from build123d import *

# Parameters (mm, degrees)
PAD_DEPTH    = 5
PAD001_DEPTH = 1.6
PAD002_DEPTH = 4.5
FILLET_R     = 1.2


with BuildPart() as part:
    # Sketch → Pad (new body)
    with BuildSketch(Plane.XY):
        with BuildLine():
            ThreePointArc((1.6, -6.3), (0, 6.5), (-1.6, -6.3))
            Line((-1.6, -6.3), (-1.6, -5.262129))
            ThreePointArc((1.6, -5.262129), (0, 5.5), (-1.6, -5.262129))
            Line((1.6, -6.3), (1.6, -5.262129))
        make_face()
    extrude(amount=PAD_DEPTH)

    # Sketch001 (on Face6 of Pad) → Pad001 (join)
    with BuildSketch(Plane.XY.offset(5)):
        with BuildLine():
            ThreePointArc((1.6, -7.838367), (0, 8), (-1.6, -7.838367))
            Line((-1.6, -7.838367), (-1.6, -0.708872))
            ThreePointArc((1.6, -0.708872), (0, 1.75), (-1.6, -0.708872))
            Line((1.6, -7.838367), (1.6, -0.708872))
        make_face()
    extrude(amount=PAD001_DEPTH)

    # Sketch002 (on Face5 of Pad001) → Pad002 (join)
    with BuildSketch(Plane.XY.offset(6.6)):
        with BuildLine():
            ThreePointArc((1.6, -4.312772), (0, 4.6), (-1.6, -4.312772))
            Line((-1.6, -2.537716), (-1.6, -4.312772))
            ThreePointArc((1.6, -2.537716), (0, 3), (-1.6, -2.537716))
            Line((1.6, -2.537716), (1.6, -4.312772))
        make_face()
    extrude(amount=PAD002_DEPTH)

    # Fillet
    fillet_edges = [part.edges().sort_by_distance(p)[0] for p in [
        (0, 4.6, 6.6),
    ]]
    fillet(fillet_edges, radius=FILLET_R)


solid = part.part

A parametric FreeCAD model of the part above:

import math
import FreeCAD as App
import Part
import Sketcher

V = App.Vector


def edges_at(feature, points):
    """Names of the edges that pass closest to the given points."""
    edges = feature.Shape.Edges
    near = lambda p: min(range(len(edges)), key=lambda i: edges[i].distToShape(Part.Vertex(*p))[0])
    return sorted({f"Edge{near(p) + 1}" for p in points})

doc = App.newDocument("Part")
body = doc.addObject("PartDesign::Body", "Body")

sketch1 = body.newObject("Sketcher::SketchObject", "Sketch")
sketch1.AttachmentSupport = (doc.getObject("XY_Plane"), [""])
sketch1.MapMode = "FlatFace"
sketch1.addGeometry([
    Part.ArcOfCircle(Part.Circle(V(0, 0, 0), V(0, 0, 1), 6.5), math.radians(-75.749967), math.radians(255.749967)),
    Part.LineSegment(V(-1.6, -6.3, 0), V(-1.6, -5.262129, 0)),
    Part.ArcOfCircle(Part.Circle(V(0, 0, 0), V(0, 0, 1), 5.5), math.radians(-73.08761), math.radians(253.08761)),
    Part.LineSegment(V(1.6, -5.262129, 0), V(1.6, -6.3, 0)),
], False)
sketch1.addConstraint([
    Sketcher.Constraint("Coincident", 0, 2, 1, 1),
    Sketcher.Constraint("Coincident", 1, 2, 2, 2),
    Sketcher.Constraint("Coincident", 2, 1, 3, 1),
    Sketcher.Constraint("Coincident", 3, 2, 0, 1),
    Sketcher.Constraint("Vertical", 1),
    Sketcher.Constraint("Vertical", 3),
    Sketcher.Constraint("Coincident", 0, 3, -1, 1),
    Sketcher.Constraint("Coincident", 2, 3, -1, 1),
    Sketcher.Constraint("Horizontal", 1, 2, 2, 1),
    Sketcher.Constraint("Radius", 0, 6.5),
    Sketcher.Constraint("Radius", 2, 5.5),
    Sketcher.Constraint("DistanceX", 0, 2, -1, 1, 1.6),
])
pad1 = body.newObject("PartDesign::Pad", "Pad")
pad1.Profile = sketch1
pad1.Length = 5

sketch2 = body.newObject("Sketcher::SketchObject", "Sketch001")
sketch2.AttachmentSupport = (doc.getObject("XY_Plane"), [""])
sketch2.MapMode = "FlatFace"
sketch2.AttachmentOffset = App.Placement(V(0, 0, 5), App.Rotation())
sketch2.addGeometry([
    Part.ArcOfCircle(Part.Circle(V(0, 0, 0), V(0, 0, 1), 8), math.radians(-78.463041), math.radians(258.463041)),
    Part.LineSegment(V(-1.6, -7.838367, 0), V(-1.6, -0.708872, 0)),
    Part.ArcOfCircle(Part.Circle(V(0, 0, 0), V(0, 0, 1), 1.75), math.radians(-23.895501), math.radians(203.895501)),
    Part.LineSegment(V(1.6, -0.708872, 0), V(1.6, -7.838367, 0)),
], False)
sketch2.addConstraint([
    Sketcher.Constraint("Coincident", 0, 2, 1, 1),
    Sketcher.Constraint("Coincident", 1, 2, 2, 2),
    Sketcher.Constraint("Coincident", 2, 1, 3, 1),
    Sketcher.Constraint("Coincident", 3, 2, 0, 1),
    Sketcher.Constraint("Vertical", 1),
    Sketcher.Constraint("Vertical", 3),
    Sketcher.Constraint("Coincident", 0, 3, -1, 1),
    Sketcher.Constraint("Coincident", 2, 3, -1, 1),
    Sketcher.Constraint("Horizontal", 1, 2, 2, 1),
    Sketcher.Constraint("Radius", 0, 8.0),
    Sketcher.Constraint("Radius", 2, 1.75),
    Sketcher.Constraint("DistanceX", 0, 2, -1, 1, 1.6),
])
pad2 = body.newObject("PartDesign::Pad", "Pad001")
pad2.Profile = sketch2
pad2.Length = 1.6

sketch3 = body.newObject("Sketcher::SketchObject", "Sketch002")
sketch3.AttachmentSupport = (doc.getObject("XY_Plane"), [""])
sketch3.MapMode = "FlatFace"
sketch3.AttachmentOffset = App.Placement(V(0, 0, 6.6), App.Rotation())
sketch3.addGeometry([
    Part.ArcOfCircle(Part.Circle(V(0, 0, 0), V(0, 0, 1), 4.6), math.radians(-69.645594), math.radians(249.645594)),
    Part.LineSegment(V(-1.6, -4.312772, 0), V(-1.6, -2.537716, 0)),
    Part.ArcOfCircle(Part.Circle(V(0, 0, 0), V(0, 0, 1), 3), math.radians(-57.76905), math.radians(237.76905)),
    Part.LineSegment(V(1.6, -2.537716, 0), V(1.6, -4.312772, 0)),
], False)
sketch3.addConstraint([
    Sketcher.Constraint("Coincident", 0, 2, 1, 1),
    Sketcher.Constraint("Coincident", 1, 2, 2, 2),
    Sketcher.Constraint("Coincident", 2, 1, 3, 1),
    Sketcher.Constraint("Coincident", 3, 2, 0, 1),
    Sketcher.Constraint("Vertical", 1),
    Sketcher.Constraint("Vertical", 3),
    Sketcher.Constraint("Coincident", 0, 3, -1, 1),
    Sketcher.Constraint("Coincident", 2, 3, -1, 1),
    Sketcher.Constraint("Horizontal", 1, 2, 2, 1),
    Sketcher.Constraint("Radius", 2, 3.0),
    Sketcher.Constraint("Radius", 0, 4.6),
    Sketcher.Constraint("DistanceX", 0, 2, -1, 1, 1.6),
])
pad3 = body.newObject("PartDesign::Pad", "Pad002")
pad3.Profile = sketch3
pad3.Length = 4.5
doc.recompute()

fillet = body.newObject("PartDesign::Fillet", "Fillet")
fillet.Base = (pad3, edges_at(pad3, [(0, 4.6, 6.6)]))
fillet.Radius = 1.2

doc.recompute()
